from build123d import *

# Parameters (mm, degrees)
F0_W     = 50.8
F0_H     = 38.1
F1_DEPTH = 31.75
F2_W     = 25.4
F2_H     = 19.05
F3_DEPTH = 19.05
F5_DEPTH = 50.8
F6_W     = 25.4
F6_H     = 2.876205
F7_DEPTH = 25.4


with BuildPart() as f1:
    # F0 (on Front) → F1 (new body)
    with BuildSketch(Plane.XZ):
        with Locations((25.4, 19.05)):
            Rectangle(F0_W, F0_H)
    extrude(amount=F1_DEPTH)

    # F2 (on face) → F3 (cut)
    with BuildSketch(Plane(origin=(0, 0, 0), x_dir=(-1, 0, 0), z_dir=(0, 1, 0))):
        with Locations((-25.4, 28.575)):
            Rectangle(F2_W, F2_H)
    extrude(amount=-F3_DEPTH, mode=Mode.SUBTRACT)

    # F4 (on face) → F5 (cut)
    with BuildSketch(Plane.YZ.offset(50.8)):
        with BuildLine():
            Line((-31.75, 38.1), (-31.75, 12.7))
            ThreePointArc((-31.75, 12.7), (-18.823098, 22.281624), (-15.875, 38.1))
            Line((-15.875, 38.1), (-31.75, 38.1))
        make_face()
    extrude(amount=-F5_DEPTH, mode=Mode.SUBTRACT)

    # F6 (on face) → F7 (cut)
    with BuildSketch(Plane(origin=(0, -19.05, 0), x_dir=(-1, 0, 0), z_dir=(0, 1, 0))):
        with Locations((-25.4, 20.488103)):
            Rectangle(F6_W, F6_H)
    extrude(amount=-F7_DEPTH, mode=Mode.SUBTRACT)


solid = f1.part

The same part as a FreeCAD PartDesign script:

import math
import FreeCAD as App
import Part
import Sketcher

V = App.Vector
Q = App.Units.Quantity


def add_polygon(sketch, points):
    """Adds a closed chain of lines whose ends are joined by coincident constraints."""
    first, n = sketch.GeometryCount, len(points)
    for a, b in zip(points, points[1:] + points[:1]):
        sketch.addGeometry(Part.LineSegment(App.Vector(*a, 0), App.Vector(*b, 0)), False)
    for i in range(n):
        sketch.addConstraint(Sketcher.Constraint("Coincident", first + i, 2, first + (i + 1) % n, 1))

doc = App.newDocument("Part")
params = doc.addObject("Spreadsheet::Sheet", "Params")
for row, (alias, value) in enumerate([
    ("sketch1_width", "2 in"),
    ("sketch1_height", "1.5 in"),
    ("pad1_length", "1.25 in"),
    ("sketch2_width", "1 in"),
    ("sketch2_height", "0.75 in"),
    ("pocket1_length", "0.75 in"),
    ("sketch3_height", "1 in"),
    ("sketch3_width", "0.625 in"),
    ("pocket2_length", "2 in"),
    ("sketch4_width", "1 in"),
    ("pocket3_length", "1 in"),
], start=1):
    params.set(f"A{row}", alias)
    params.set(f"B{row}", "=" + value)
    params.setAlias(f"B{row}", alias)

body = doc.addObject("PartDesign::Body", "Body")

# Sketch on XZ plane
sketch1 = doc.addObject("Sketcher::SketchObject", "Sketch")
body.addObject(sketch1)
sketch1.AttachmentSupport = (doc.XZ_Plane, [""])
sketch1.MapMode = "FlatFace"
add_polygon(sketch1, [(0, 38), (0, 0), (51, 0), (51, 38)])  # lines 0-3
sketch1.addConstraint(Sketcher.Constraint("Vertical", 0))
sketch1.addConstraint(Sketcher.Constraint("Horizontal", 1))
sketch1.addConstraint(Sketcher.Constraint("Vertical", 2))
sketch1.addConstraint(Sketcher.Constraint("Horizontal", 3))
sketch1.addConstraint(Sketcher.Constraint("Coincident", 0, 2, -1, 1))
sketch1.addConstraint(Sketcher.Constraint("DistanceX", 1, 1, 1, 2, Q("2 in")))
sketch1.addConstraint(Sketcher.Constraint("DistanceY", 0, 2, 0, 1, Q("1.5 in")))
sketch1.setExpression("Constraints[9]", "Params.sketch1_width")
sketch1.setExpression("Constraints[10]", "Params.sketch1_height")
pad1 = doc.addObject("PartDesign::Pad", "Pad")
body.addObject(pad1)
pad1.Profile = sketch1
pad1.setExpression("Length", "Params.pad1_length")

# Sketch on XZ plane
sketch2 = doc.addObject("Sketcher::SketchObject", "Sketch001")
body.addObject(sketch2)
sketch2.AttachmentSupport = (doc.XZ_Plane, [""])
sketch2.MapMode = "FlatFace"
add_polygon(sketch2, [(38, 38), (38, 19), (13, 19), (13, 38)])  # lines 0-3
sketch2.addConstraint(Sketcher.Constraint("Vertical", 0))
sketch2.addConstraint(Sketcher.Constraint("Horizontal", 1))
sketch2.addConstraint(Sketcher.Constraint("Vertical", 2))
sketch2.addConstraint(Sketcher.Constraint("Horizontal", 3))
sketch2.addConstraint(Sketcher.Constraint("DistanceX", 1, 2, 1, 1, Q("1 in")))
sketch2.addConstraint(Sketcher.Constraint("DistanceY", 0, 2, 0, 1, Q("0.75 in")))
sketch2.addConstraint(Sketcher.Constraint("DistanceX", -1, 1, 0, 2, Q("1.5 in")))
sketch2.addConstraint(Sketcher.Constraint("DistanceY", -1, 1, 2, 2, Q("1.5 in")))
sketch2.setExpression("Constraints[8]", "Params.sketch2_width")
sketch2.setExpression("Constraints[9]", "Params.sketch2_height")
pocket1 = doc.addObject("PartDesign::Pocket", "Pocket")
body.addObject(pocket1)
pocket1.Profile = sketch2
pocket1.setExpression("Length", "Params.pocket1_length")
pocket1.Reversed = True

# Sketch on YZ plane
sketch3 = doc.addObject("Sketcher::SketchObject", "Sketch002")
body.addObject(sketch3)
sketch3.AttachmentSupport = (doc.YZ_Plane, [""])
sketch3.MapMode = "FlatFace"
sketch3.AttachmentOffset = App.Placement(V(0, 0, 2 * 25.4), App.Rotation())
sketch3.addGeometry(Part.LineSegment(V(-32, 38, 0), V(-32, 13, 0)), False)
sketch3.addGeometry(Part.ArcOfCircle(Part.Circle(V(-37, 34, 0), V(0, 0, 1), 22), math.radians(-75), math.radians(11)), False)
sketch3.addGeometry(Part.LineSegment(V(-16, 38, 0), V(-32, 38, 0)), False)
sketch3.addConstraint(Sketcher.Constraint("Coincident", 0, 2, 1, 1))
sketch3.addConstraint(Sketcher.Constraint("Coincident", 1, 2, 2, 1))
sketch3.addConstraint(Sketcher.Constraint("Coincident", 2, 2, 0, 1))
sketch3.addConstraint(Sketcher.Constraint("Vertical", 0))
sketch3.addConstraint(Sketcher.Constraint("Horizontal", 2))
sketch3.addConstraint(Sketcher.Constraint("DistanceY", 0, 2, 0, 1, Q("1 in")))
sketch3.addConstraint(Sketcher.Constraint("DistanceY", -1, 1, 0, 2, Q("0.5 in")))
sketch3.addConstraint(Sketcher.Constraint("DistanceX", 2, 2, 2, 1, Q("0.625 in")))
sketch3.addConstraint(Sketcher.Constraint("DistanceX", 0, 2, -1, 1, Q("1.25 in")))
sketch3.addConstraint(Sketcher.Constraint("Radius", 1, 22.002356))
sketch3.setExpression("Constraints[5]", "Params.sketch3_height")
sketch3.setExpression("Constraints[7]", "Params.sketch3_width")
pocket2 = doc.addObject("PartDesign::Pocket", "Pocket001")
body.addObject(pocket2)
pocket2.Profile = sketch3
pocket2.setExpression("Length", "Params.pocket2_length")

# Sketch on XZ plane
sketch4 = doc.addObject("Sketcher::SketchObject", "Sketch003")
body.addObject(sketch4)
sketch4.AttachmentSupport = (doc.XZ_Plane, [""])
sketch4.MapMode = "FlatFace"
sketch4.AttachmentOffset = App.Placement(V(0, 0, 0.75 * 25.4), App.Rotation())
add_polygon(sketch4, [(38.1, 21.9), (38.1, 19.1), (12.7, 19.1), (12.7, 21.9)])  # lines 0-3
sketch4.addConstraint(Sketcher.Constraint("Vertical", 0))
sketch4.addConstraint(Sketcher.Constraint("Horizontal", 1))
sketch4.addConstraint(Sketcher.Constraint("Vertical", 2))
sketch4.addConstraint(Sketcher.Constraint("Horizontal", 3))
sketch4.addConstraint(Sketcher.Constraint("DistanceX", 1, 2, 1, 1, Q("1 in")))
sketch4.addConstraint(Sketcher.Constraint("DistanceX", -1, 1, 0, 2, Q("1.5 in")))
sketch4.addConstraint(Sketcher.Constraint("DistanceY", -1, 1, 0, 2, Q("0.75 in")))
sketch4.addConstraint(Sketcher.Constraint("DistanceY", 0, 2, 0, 1, 2.876205))
sketch4.setExpression("Constraints[8]", "Params.sketch4_width")
pocket3 = doc.addObject("PartDesign::Pocket", "Pocket002")
body.addObject(pocket3)
pocket3.Profile = sketch4
pocket3.setExpression("Length", "Params.pocket3_length")
pocket3.Reversed = True

doc.recompute()
